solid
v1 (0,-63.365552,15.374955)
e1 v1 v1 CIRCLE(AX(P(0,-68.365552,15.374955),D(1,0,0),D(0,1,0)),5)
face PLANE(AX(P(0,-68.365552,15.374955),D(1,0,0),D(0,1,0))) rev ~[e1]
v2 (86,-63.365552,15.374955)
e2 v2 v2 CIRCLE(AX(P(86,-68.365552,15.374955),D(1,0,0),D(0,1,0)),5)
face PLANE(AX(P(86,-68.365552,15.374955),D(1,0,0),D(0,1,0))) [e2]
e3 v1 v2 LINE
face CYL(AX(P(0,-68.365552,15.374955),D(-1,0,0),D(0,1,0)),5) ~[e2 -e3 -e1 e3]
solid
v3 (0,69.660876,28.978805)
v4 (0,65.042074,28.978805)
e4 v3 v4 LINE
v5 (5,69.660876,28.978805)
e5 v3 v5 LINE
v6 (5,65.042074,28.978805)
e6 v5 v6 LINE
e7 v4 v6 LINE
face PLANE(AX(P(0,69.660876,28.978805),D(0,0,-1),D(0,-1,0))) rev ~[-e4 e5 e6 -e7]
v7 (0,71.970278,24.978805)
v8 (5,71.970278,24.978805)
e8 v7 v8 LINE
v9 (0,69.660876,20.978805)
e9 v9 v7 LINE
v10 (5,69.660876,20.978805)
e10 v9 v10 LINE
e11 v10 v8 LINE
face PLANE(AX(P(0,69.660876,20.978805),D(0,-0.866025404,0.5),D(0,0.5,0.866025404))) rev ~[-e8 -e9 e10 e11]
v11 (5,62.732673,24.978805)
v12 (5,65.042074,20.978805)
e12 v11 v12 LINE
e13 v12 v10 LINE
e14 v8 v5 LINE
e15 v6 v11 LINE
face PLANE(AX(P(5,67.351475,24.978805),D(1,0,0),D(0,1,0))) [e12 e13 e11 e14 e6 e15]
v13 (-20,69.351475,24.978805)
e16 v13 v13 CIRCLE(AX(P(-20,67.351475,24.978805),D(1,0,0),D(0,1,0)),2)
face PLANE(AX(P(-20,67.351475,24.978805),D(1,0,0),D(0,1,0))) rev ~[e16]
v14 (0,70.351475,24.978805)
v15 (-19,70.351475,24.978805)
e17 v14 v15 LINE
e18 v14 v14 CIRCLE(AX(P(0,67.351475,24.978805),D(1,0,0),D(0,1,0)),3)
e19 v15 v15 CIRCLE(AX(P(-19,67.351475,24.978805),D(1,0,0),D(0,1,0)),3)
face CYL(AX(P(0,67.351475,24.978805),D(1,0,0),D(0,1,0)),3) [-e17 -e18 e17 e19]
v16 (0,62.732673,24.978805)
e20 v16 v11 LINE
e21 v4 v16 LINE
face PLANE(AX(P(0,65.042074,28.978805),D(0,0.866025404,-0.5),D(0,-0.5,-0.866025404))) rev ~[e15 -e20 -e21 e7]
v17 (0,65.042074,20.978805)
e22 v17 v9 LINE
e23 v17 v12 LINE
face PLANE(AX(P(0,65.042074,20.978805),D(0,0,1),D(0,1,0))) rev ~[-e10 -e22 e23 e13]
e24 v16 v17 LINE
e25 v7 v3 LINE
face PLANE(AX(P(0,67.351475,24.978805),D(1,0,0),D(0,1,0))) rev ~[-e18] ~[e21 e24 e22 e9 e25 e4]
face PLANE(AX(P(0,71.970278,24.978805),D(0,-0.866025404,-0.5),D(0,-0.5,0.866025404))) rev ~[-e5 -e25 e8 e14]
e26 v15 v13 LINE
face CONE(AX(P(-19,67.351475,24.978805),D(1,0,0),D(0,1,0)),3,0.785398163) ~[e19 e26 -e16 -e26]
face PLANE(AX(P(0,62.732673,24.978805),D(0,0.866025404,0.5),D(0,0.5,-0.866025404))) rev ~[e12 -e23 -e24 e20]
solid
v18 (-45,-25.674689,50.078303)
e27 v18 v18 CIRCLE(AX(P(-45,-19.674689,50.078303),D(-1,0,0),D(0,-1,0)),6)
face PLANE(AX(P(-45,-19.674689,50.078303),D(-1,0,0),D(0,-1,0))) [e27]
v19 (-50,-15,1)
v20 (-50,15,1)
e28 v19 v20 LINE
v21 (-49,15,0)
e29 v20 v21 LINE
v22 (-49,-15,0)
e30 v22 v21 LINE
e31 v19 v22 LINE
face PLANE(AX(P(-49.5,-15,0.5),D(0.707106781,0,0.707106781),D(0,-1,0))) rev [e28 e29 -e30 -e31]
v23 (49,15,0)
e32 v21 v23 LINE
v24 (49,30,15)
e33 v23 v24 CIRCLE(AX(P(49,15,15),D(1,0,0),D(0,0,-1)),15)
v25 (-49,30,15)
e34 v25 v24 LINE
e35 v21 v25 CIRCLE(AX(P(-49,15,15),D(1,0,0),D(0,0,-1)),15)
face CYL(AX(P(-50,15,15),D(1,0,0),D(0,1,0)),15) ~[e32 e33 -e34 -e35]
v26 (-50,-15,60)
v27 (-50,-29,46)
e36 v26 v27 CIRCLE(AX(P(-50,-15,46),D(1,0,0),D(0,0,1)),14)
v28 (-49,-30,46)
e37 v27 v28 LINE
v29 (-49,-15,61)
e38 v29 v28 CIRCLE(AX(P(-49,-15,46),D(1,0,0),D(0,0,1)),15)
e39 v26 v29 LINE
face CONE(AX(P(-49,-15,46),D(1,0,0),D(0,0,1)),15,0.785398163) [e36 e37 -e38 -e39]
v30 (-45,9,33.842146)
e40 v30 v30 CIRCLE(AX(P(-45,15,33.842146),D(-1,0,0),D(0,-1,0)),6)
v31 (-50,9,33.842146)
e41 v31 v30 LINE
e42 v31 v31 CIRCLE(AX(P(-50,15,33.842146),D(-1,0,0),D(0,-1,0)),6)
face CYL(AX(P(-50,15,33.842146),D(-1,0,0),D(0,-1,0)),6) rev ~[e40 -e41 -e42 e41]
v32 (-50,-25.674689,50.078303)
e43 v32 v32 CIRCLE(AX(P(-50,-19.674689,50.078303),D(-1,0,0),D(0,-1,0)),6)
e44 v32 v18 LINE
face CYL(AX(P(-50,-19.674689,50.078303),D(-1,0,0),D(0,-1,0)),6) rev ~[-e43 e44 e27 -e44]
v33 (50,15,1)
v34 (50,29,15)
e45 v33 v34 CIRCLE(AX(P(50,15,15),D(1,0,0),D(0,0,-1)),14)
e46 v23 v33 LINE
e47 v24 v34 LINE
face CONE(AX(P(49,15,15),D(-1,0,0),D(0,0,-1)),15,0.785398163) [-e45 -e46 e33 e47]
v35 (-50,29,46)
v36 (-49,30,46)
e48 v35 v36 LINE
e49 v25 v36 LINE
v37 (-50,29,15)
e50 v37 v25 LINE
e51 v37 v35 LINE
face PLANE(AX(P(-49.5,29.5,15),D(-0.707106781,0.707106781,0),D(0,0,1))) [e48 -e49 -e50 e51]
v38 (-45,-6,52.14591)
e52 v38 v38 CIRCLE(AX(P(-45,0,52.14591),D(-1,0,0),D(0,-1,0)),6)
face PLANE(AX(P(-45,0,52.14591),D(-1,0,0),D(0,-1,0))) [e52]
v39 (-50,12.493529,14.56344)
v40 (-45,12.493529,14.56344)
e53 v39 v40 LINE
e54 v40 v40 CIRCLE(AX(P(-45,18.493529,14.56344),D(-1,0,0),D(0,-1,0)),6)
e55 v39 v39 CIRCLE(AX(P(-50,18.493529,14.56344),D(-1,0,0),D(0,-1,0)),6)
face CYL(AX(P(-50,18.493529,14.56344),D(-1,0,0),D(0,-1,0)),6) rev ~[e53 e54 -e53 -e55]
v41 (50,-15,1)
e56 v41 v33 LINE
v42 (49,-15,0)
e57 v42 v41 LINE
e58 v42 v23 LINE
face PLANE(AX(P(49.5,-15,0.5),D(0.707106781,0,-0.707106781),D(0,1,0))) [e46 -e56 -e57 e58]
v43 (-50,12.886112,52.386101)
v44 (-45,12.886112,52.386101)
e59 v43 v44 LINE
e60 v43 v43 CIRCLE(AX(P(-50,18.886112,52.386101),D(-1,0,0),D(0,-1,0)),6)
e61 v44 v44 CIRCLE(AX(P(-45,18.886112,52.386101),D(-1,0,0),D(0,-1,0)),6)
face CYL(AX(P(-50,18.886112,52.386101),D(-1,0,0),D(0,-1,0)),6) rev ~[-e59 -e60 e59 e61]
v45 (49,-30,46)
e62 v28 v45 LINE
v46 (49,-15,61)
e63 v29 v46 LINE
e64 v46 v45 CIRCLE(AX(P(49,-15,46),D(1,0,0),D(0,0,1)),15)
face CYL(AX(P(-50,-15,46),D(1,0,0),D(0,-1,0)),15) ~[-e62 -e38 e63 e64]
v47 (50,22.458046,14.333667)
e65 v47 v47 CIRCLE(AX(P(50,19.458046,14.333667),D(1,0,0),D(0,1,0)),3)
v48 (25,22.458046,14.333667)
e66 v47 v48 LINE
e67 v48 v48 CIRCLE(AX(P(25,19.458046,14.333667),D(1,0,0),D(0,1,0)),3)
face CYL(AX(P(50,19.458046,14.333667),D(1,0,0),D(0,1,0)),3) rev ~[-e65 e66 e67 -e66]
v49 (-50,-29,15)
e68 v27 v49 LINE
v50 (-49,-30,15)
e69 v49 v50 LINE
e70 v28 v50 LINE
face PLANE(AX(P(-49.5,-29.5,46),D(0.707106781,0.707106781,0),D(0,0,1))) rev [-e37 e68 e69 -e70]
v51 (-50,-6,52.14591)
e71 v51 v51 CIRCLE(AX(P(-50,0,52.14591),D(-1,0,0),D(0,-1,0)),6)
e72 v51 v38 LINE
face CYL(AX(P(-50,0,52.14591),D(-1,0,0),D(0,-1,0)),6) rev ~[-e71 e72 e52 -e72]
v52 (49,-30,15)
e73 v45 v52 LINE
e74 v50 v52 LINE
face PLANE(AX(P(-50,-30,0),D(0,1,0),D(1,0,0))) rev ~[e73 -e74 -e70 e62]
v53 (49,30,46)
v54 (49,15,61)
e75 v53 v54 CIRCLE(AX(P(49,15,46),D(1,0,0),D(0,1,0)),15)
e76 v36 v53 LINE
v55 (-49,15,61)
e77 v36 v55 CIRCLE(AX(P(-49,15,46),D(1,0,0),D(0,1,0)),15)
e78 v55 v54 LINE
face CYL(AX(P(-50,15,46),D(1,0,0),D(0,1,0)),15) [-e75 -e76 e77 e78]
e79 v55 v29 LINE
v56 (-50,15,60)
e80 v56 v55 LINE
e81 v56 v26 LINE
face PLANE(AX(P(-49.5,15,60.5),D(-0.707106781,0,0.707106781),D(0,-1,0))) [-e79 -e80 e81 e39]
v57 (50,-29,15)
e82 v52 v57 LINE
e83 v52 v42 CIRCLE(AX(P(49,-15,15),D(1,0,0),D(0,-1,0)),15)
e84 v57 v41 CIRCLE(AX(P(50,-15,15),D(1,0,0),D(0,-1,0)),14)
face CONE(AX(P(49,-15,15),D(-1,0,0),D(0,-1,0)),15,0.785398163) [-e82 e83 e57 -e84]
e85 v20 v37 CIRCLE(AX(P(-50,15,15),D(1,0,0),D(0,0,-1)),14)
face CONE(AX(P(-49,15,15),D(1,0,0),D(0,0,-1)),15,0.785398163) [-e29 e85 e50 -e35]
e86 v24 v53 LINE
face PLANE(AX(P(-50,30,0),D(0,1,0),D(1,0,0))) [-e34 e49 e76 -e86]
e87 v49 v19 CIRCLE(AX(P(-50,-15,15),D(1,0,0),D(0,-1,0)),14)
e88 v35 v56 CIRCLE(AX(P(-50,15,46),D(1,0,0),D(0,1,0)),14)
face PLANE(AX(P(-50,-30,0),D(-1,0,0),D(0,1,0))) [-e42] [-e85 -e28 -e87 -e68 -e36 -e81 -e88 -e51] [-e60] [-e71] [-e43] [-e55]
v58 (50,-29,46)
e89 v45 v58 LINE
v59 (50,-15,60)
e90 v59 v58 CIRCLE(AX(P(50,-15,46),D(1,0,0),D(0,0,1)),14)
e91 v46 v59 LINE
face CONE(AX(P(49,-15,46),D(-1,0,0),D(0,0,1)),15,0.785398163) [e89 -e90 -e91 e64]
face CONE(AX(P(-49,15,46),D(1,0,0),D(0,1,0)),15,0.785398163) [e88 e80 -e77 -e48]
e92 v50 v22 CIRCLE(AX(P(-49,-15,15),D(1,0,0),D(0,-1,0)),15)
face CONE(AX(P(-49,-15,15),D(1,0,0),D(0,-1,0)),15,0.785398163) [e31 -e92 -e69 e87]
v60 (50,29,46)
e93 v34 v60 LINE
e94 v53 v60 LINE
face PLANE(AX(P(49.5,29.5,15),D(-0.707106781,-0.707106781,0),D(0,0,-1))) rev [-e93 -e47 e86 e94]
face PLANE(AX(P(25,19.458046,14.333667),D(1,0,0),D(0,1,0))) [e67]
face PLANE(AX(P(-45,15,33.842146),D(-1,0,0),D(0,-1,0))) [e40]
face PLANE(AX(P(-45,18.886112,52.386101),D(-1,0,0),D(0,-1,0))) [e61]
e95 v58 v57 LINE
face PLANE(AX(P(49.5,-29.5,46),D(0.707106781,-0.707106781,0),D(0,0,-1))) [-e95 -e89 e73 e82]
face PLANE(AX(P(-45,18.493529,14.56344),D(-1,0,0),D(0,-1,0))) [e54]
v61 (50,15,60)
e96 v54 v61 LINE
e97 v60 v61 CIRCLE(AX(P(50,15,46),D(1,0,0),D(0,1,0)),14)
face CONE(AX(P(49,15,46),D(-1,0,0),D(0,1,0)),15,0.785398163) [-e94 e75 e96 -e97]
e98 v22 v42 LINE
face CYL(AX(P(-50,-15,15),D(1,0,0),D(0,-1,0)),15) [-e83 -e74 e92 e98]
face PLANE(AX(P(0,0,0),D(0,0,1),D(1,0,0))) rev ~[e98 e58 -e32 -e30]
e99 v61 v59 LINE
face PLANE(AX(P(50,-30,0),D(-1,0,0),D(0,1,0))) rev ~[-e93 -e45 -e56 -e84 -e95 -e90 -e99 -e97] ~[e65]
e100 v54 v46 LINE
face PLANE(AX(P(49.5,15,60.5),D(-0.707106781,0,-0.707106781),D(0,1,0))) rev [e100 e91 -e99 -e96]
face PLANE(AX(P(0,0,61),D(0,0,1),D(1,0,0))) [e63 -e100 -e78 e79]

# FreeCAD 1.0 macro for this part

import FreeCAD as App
import Part
import Sketcher

V = App.Vector
Q = App.Units.Quantity


def edges_at(feature, points):
    """Names of the edges that pass closest to the given points."""
    edges = feature.Shape.Edges
    near = lambda p: min(range(len(edges)), key=lambda i: edges[i].distToShape(Part.Vertex(*p))[0])
    return sorted({f"Edge{near(p) + 1}" for p in points})

doc = App.newDocument("Part")
body = doc.addObject("PartDesign::Body", "Body")

# Sketch on XY plane
sketch1 = body.newObject("Sketcher::SketchObject", "Sketch")
sketch1.AttachmentSupport = (doc.getObject("XY_Plane"), [""])
sketch1.MapMode = "FlatFace"
sketch1.addGeometry(Part.LineSegment(V(-50, 30, 0), V(-50, -30, 0)), False)
sketch1.addGeometry(Part.LineSegment(V(-50, -30, 0), V(50, -30, 0)), False)
sketch1.addGeometry(Part.LineSegment(V(50, -30, 0), V(50, 30, 0)), False)
sketch1.addGeometry(Part.LineSegment(V(50, 30, 0), V(-50, 30, 0)), False)
sketch1.addConstraint(Sketcher.Constraint("Coincident", 0, 2, 1, 1))
sketch1.addConstraint(Sketcher.Constraint("Coincident", 1, 2, 2, 1))
sketch1.addConstraint(Sketcher.Constraint("Coincident", 2, 2, 3, 1))
sketch1.addConstraint(Sketcher.Constraint("Coincident", 3, 2, 0, 1))
sketch1.addConstraint(Sketcher.Constraint("Vertical", 0))
sketch1.addConstraint(Sketcher.Constraint("Horizontal", 1))
sketch1.addConstraint(Sketcher.Constraint("Vertical", 2))
sketch1.addConstraint(Sketcher.Constraint("Horizontal", 3))
sketch1.addConstraint(Sketcher.Constraint("Symmetric", 0, 2, 2, 2, -1, 1))
sketch1.addConstraint(Sketcher.Constraint("DistanceX", 1, 1, 1, 2, Q("100 mm")))
sketch1.addConstraint(Sketcher.Constraint("DistanceY", 0, 2, 0, 1, Q("60 mm")))
pad1 = body.newObject("PartDesign::Pad", "Pad")
pad1.Profile = sketch1
pad1.Length = 61
doc.recompute()

fillet = body.newObject("PartDesign::Fillet", "Fillet")
fillet.Base = (pad1, edges_at(pad1, [
    (0, -30, 61),
    (0, 30, 61),
    (0, -30, 0),
    (0, 30, 0),
]))
fillet.Radius = 15

# Sketch on YZ plane
sketch2 = body.newObject("Sketcher::SketchObject", "Sketch001")
sketch2.AttachmentSupport = (doc.getObject("YZ_Plane"), [""])
sketch2.MapMode = "FlatFace"
sketch2.AttachmentOffset = App.Placement(V(0, 0, -50), App.Rotation())
sketch2.addGeometry(Part.Circle(V(19, 52, 0), V(0, 0, 1), 6), False)
sketch2.addGeometry(Part.Circle(V(15, 34, 0), V(0, 0, 1), 6), False)
sketch2.addGeometry(Part.Circle(V(-20, 50, 0), V(0, 0, 1), 6), False)
sketch2.addGeometry(Part.Circle(V(0, 52, 0), V(0, 0, 1), 6), False)
sketch2.addGeometry(Part.Circle(V(18, 15, 0), V(0, 0, 1), 6), False)
sketch2.addConstraint(Sketcher.Constraint("Equal", 0, 1))
sketch2.addConstraint(Sketcher.Constraint("Equal", 1, 2))
sketch2.addConstraint(Sketcher.Constraint("Equal", 2, 3))
sketch2.addConstraint(Sketcher.Constraint("Equal", 3, 4))
sketch2.addConstraint(Sketcher.Constraint("PointOnObject", 3, 3, -2))
sketch2.addConstraint(Sketcher.Constraint("Diameter", 0, Q("12 mm")))
sketch2.addConstraint(Sketcher.Constraint("DistanceX", -1, 1, 1, 3, Q("15 mm")))
sketch2.addConstraint(Sketcher.Constraint("DistanceY", -1, 1, 0, 3, Q("52.386101 mm")))
sketch2.addConstraint(Sketcher.Constraint("DistanceX", 2, 3, 0, 3, Q("38.5608 mm")))
sketch2.addConstraint(Sketcher.Constraint("DistanceY", 2, 3, 0, 3, Q("2.307799 mm")))
sketch2.addConstraint(Sketcher.Constraint("DistanceX", -1, 1, 0, 3, Q("18.886112 mm")))
sketch2.addConstraint(Sketcher.Constraint("DistanceY", -1, 1, 3, 3, Q("52.14591 mm")))
sketch2.addConstraint(Sketcher.Constraint("DistanceX", -1, 1, 4, 3, Q("18.493529 mm")))
sketch2.addConstraint(Sketcher.Constraint("DistanceY", -1, 1, 4, 3, Q("14.56344 mm")))
sketch2.addConstraint(Sketcher.Constraint("DistanceY", -1, 1, 1, 3, Q("33.842146 mm")))
pocket1 = body.newObject("PartDesign::Pocket", "Pocket")
pocket1.Profile = sketch2
pocket1.Length = 5
pocket1.Reversed = True

# Sketch on YZ plane
sketch3 = body.newObject("Sketcher::SketchObject", "Sketch002")
sketch3.AttachmentSupport = (doc.getObject("YZ_Plane"), [""])
sketch3.MapMode = "FlatFace"
sketch3.AttachmentOffset = App.Placement(V(0, 0, 50), App.Rotation())
sketch3.addGeometry(Part.Circle(V(19.5, 14.3, 0), V(0, 0, 1), 3), False)
sketch3.addConstraint(Sketcher.Constraint("Diameter", 0, Q("6 mm")))
sketch3.addConstraint(Sketcher.Constraint("DistanceX", -1, 1, 0, 3, Q("19.458046 mm")))
sketch3.addConstraint(Sketcher.Constraint("DistanceY", -1, 1, 0, 3, Q("14.333667 mm")))
pocket2 = body.newObject("PartDesign::Pocket", "Pocket001")
pocket2.Profile = sketch3
pocket2.Length = 25
doc.recompute()

chamfer = body.newObject("PartDesign::Chamfer", "Chamfer")
chamfer.Base = (pocket2, edges_at(pocket2, [
    (50, 25.607, 56.607),
    (0, 30, 46),
    (0, 15, 61),
    (-50, 25.607, 56.607),
]))
chamfer.Size = 1
body2 = doc.addObject("PartDesign::Body", "Body001")

# Sketch on YZ plane
sketch4 = body2.newObject("Sketcher::SketchObject", "Sketch003")
sketch4.AttachmentSupport = (doc.getObject("YZ_Plane001"), [""])
sketch4.MapMode = "FlatFace"
sketch4.addGeometry(Part.Circle(V(-68, 15, 0), V(0, 0, 1), 5), False)
sketch4.addConstraint(Sketcher.Constraint("Diameter", 0, Q("10 mm")))
sketch4.addConstraint(Sketcher.Constraint("DistanceX", 0, 3, -1, 1, Q("68.365552 mm")))
sketch4.addConstraint(Sketcher.Constraint("DistanceY", -1, 1, 0, 3, Q("15.374955 mm")))
pad2 = body2.newObject("PartDesign::Pad", "Pad001")
pad2.Profile = sketch4
pad2.Length = 86
body3 = doc.addObject("PartDesign::Body", "Body002")

# Sketch on YZ plane
sketch5 = body3.newObject("Sketcher::SketchObject", "Sketch004")
sketch5.AttachmentSupport = (doc.getObject("YZ_Plane002"), [""])
sketch5.MapMode = "FlatFace"
sketch5.addGeometry(Part.Circle(V(67.4, 25, 0), V(0, 0, 1), 3), False)
sketch5.addConstraint(Sketcher.Constraint("Diameter", 0, Q("6 mm")))
sketch5.addConstraint(Sketcher.Constraint("DistanceX", -1, 1, 0, 3, Q("67.351475 mm")))
sketch5.addConstraint(Sketcher.Constraint("DistanceY", -1, 1, 0, 3, Q("24.978805 mm")))
pad3 = body3.newObject("PartDesign::Pad", "Pad002")
pad3.Profile = sketch5
pad3.Length = 20
pad3.Reversed = True

# Sketch on YZ plane
sketch6 = body3.newObject("Sketcher::SketchObject", "Sketch005")
sketch6.AttachmentSupport = (doc.getObject("YZ_Plane002"), [""])
sketch6.MapMode = "FlatFace"
sketch6.addGeometry(Part.LineSegment(V(69.7, 21, 0), V(72, 25, 0)), False)
sketch6.addGeometry(Part.LineSegment(V(72, 25, 0), V(69.7, 29, 0)), False)
sketch6.addGeometry(Part.LineSegment(V(69.7, 29, 0), V(65, 29, 0)), False)
sketch6.addGeometry(Part.LineSegment(V(65, 29, 0), V(62.7, 25, 0)), False)
sketch6.addGeometry(Part.LineSegment(V(62.7, 25, 0), V(65, 21, 0)), False)
sketch6.addGeometry(Part.LineSegment(V(65, 21, 0), V(69.7, 21, 0)), False)
sketch6.addConstraint(Sketcher.Constraint("Coincident", 0, 2, 1, 1))
sketch6.addConstraint(Sketcher.Constraint("Coincident", 1, 2, 2, 1))
sketch6.addConstraint(Sketcher.Constraint("Coincident", 2, 2, 3, 1))
sketch6.addConstraint(Sketcher.Constraint("Coincident", 3, 2, 4, 1))
sketch6.addConstraint(Sketcher.Constraint("Coincident", 4, 2, 5, 1))
sketch6.addConstraint(Sketcher.Constraint("Coincident", 5, 2, 0, 1))
sketch6.addConstraint(Sketcher.Constraint("Horizontal", 2))
sketch6.addConstraint(Sketcher.Constraint("Horizontal", 5))
sketch6.addConstraint(Sketcher.Constraint("Parallel", 0, 3))
sketch6.addConstraint(Sketcher.Constraint("Parallel", 1, 4))
sketch6.addConstraint(Sketcher.Constraint("Horizontal", 0, 2, 3, 2))
sketch6.addConstraint(Sketcher.Constraint("Vertical", 2, 2, 4, 2))
sketch6.addConstraint(Sketcher.Constraint("Vertical", 1, 2, 5, 2))
sketch6.addConstraint(Sketcher.Constraint("Angle", 0, Q("60 deg")))
sketch6.addConstraint(Sketcher.Constraint("DistanceY", 0, 2, 1, 2, Q("4 mm")))
sketch6.addConstraint(Sketcher.Constraint("DistanceX", 2, 2, 2, 1, Q("4.618802 mm")))
sketch6.addConstraint(Sketcher.Constraint("DistanceX", -1, 1, 0, 2, Q("71.970278 mm")))
sketch6.addConstraint(Sketcher.Constraint("DistanceY", -1, 1, 0, 2, Q("24.978805 mm")))
pad4 = body3.newObject("PartDesign::Pad", "Pad003")
pad4.Profile = sketch6
pad4.Length = 5
doc.recompute()

chamfer2 = body3.newObject("PartDesign::Chamfer", "Chamfer001")
chamfer2.Base = (pad4, edges_at(pad4, [(-20, 64.351, 24.979)]))
chamfer2.Size = 1

doc.recompute()
